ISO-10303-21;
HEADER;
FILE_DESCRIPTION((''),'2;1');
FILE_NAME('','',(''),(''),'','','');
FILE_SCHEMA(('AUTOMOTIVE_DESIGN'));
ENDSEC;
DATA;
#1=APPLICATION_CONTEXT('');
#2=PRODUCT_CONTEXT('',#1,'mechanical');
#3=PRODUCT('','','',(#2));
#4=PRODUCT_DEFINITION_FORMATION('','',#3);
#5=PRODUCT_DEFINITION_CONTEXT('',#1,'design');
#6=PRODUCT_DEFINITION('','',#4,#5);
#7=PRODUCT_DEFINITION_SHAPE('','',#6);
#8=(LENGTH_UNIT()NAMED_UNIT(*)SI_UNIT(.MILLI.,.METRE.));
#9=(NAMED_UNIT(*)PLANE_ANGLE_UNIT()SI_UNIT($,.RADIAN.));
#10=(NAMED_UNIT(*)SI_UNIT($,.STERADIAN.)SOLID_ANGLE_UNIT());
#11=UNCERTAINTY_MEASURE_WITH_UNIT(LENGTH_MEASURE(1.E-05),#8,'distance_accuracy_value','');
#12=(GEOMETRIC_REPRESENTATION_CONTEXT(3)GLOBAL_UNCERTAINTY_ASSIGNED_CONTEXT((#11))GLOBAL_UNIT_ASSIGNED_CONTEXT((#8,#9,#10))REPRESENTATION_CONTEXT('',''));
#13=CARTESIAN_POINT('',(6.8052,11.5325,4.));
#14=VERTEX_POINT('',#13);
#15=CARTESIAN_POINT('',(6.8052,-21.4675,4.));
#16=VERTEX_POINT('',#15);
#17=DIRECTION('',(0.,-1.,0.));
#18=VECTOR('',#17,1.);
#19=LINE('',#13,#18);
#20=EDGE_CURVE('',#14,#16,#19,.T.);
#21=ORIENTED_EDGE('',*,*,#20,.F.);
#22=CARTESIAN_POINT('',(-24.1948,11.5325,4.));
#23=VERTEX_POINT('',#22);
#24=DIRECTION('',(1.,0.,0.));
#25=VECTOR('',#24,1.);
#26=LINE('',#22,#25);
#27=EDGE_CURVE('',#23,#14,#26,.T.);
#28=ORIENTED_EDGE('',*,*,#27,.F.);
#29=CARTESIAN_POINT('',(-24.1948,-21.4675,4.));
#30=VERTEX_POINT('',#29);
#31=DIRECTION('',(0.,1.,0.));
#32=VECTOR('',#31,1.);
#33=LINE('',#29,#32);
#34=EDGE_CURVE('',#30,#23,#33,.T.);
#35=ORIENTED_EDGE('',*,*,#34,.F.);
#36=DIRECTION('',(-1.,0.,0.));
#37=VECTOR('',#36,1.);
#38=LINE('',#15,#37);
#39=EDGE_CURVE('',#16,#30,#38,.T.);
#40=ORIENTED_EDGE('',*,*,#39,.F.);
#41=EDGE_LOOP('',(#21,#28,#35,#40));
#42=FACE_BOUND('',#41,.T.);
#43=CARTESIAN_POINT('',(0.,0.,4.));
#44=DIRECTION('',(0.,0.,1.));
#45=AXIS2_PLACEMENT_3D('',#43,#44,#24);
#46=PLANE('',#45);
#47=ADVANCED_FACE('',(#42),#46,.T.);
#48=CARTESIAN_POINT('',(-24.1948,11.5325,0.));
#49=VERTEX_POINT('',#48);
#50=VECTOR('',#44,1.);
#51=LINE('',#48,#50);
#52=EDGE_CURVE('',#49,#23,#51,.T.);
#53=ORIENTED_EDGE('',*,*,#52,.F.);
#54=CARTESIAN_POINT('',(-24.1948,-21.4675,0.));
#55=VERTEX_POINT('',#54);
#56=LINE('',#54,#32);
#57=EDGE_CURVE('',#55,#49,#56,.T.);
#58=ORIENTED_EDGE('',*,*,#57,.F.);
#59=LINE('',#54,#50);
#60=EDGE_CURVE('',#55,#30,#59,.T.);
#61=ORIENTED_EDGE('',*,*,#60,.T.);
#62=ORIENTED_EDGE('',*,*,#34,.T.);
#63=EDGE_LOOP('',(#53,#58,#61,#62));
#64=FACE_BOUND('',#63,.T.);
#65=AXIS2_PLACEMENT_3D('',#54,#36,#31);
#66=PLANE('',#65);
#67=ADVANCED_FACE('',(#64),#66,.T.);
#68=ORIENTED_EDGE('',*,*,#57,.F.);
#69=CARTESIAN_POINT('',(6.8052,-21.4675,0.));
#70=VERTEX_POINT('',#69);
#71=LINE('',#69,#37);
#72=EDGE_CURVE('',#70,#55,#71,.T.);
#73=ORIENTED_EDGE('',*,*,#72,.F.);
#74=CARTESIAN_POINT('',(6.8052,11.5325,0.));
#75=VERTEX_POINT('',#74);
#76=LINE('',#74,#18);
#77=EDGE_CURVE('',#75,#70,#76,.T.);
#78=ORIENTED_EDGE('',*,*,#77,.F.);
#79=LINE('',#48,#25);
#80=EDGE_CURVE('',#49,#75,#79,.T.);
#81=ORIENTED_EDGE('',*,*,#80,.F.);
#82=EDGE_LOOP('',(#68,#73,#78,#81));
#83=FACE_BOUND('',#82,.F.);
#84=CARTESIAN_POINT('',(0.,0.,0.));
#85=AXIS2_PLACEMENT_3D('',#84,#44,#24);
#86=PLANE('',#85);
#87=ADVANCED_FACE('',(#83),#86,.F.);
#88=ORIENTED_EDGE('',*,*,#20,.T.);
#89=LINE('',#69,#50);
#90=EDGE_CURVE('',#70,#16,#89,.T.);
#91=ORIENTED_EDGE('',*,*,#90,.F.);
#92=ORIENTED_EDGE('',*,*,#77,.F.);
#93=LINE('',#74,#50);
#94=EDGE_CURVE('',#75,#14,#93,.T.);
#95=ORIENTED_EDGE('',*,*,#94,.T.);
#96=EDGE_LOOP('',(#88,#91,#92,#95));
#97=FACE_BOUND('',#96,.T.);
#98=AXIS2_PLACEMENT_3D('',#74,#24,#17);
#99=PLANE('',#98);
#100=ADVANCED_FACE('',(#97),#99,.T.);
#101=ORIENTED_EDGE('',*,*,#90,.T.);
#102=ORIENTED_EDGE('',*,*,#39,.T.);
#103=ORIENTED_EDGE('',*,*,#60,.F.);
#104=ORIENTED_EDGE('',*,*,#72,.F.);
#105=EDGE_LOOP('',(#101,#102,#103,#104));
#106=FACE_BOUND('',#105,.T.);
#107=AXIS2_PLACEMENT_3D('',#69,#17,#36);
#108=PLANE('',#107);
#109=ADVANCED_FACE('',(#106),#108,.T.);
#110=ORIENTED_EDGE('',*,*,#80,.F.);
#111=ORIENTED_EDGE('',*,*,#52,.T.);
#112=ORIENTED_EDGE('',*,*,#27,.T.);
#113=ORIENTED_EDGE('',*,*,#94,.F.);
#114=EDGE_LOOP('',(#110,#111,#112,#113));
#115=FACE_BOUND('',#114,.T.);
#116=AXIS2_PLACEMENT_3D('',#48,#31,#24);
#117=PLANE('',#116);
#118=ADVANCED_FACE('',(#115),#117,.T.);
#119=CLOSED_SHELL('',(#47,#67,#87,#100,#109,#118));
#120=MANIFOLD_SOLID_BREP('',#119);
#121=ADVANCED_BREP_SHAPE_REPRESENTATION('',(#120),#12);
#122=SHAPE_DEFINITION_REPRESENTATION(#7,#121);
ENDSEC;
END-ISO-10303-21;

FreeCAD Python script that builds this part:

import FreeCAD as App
import Part
import Sketcher
Q = App.Units.Quantity


def add_polygon(sketch, points):
    """Adds a closed chain of lines whose ends are joined by coincident constraints."""
    first, n = sketch.GeometryCount, len(points)
    for a, b in zip(points, points[1:] + points[:1]):
        sketch.addGeometry(Part.LineSegment(App.Vector(*a, 0), App.Vector(*b, 0)), False)
    for i in range(n):
        sketch.addConstraint(Sketcher.Constraint("Coincident", first + i, 2, first + (i + 1) % n, 1))

doc = App.newDocument("Part")
body = doc.addObject("PartDesign::Body", "Body")

sketch1 = body.newObject("Sketcher::SketchObject", "Sketch")
sketch1.AttachmentSupport = (doc.getObject("XY_Plane"), [""])
sketch1.MapMode = "FlatFace"
add_polygon(sketch1, [(7, 12), (-24, 12), (-24, -21), (7, -21)])
sketch1.addConstraint([
    Sketcher.Constraint("Horizontal", 0),
    Sketcher.Constraint("Vertical", 1),
    Sketcher.Constraint("Horizontal", 2),
    Sketcher.Constraint("Vertical", 3),
    Sketcher.Constraint("DistanceX", 0, 2, 0, 1, Q("31 mm")),
    Sketcher.Constraint("DistanceY", 1, 2, 1, 1, Q("33 mm")),
    Sketcher.Constraint("DistanceX", 0, 2, -1, 1, Q("24.1948 mm")),
    Sketcher.Constraint("DistanceY", -1, 1, 0, 2, Q("11.5325 mm")),
])
pad1 = body.newObject("PartDesign::Pad", "Pad")
pad1.Profile = sketch1
pad1.Length = 4

doc.recompute()
